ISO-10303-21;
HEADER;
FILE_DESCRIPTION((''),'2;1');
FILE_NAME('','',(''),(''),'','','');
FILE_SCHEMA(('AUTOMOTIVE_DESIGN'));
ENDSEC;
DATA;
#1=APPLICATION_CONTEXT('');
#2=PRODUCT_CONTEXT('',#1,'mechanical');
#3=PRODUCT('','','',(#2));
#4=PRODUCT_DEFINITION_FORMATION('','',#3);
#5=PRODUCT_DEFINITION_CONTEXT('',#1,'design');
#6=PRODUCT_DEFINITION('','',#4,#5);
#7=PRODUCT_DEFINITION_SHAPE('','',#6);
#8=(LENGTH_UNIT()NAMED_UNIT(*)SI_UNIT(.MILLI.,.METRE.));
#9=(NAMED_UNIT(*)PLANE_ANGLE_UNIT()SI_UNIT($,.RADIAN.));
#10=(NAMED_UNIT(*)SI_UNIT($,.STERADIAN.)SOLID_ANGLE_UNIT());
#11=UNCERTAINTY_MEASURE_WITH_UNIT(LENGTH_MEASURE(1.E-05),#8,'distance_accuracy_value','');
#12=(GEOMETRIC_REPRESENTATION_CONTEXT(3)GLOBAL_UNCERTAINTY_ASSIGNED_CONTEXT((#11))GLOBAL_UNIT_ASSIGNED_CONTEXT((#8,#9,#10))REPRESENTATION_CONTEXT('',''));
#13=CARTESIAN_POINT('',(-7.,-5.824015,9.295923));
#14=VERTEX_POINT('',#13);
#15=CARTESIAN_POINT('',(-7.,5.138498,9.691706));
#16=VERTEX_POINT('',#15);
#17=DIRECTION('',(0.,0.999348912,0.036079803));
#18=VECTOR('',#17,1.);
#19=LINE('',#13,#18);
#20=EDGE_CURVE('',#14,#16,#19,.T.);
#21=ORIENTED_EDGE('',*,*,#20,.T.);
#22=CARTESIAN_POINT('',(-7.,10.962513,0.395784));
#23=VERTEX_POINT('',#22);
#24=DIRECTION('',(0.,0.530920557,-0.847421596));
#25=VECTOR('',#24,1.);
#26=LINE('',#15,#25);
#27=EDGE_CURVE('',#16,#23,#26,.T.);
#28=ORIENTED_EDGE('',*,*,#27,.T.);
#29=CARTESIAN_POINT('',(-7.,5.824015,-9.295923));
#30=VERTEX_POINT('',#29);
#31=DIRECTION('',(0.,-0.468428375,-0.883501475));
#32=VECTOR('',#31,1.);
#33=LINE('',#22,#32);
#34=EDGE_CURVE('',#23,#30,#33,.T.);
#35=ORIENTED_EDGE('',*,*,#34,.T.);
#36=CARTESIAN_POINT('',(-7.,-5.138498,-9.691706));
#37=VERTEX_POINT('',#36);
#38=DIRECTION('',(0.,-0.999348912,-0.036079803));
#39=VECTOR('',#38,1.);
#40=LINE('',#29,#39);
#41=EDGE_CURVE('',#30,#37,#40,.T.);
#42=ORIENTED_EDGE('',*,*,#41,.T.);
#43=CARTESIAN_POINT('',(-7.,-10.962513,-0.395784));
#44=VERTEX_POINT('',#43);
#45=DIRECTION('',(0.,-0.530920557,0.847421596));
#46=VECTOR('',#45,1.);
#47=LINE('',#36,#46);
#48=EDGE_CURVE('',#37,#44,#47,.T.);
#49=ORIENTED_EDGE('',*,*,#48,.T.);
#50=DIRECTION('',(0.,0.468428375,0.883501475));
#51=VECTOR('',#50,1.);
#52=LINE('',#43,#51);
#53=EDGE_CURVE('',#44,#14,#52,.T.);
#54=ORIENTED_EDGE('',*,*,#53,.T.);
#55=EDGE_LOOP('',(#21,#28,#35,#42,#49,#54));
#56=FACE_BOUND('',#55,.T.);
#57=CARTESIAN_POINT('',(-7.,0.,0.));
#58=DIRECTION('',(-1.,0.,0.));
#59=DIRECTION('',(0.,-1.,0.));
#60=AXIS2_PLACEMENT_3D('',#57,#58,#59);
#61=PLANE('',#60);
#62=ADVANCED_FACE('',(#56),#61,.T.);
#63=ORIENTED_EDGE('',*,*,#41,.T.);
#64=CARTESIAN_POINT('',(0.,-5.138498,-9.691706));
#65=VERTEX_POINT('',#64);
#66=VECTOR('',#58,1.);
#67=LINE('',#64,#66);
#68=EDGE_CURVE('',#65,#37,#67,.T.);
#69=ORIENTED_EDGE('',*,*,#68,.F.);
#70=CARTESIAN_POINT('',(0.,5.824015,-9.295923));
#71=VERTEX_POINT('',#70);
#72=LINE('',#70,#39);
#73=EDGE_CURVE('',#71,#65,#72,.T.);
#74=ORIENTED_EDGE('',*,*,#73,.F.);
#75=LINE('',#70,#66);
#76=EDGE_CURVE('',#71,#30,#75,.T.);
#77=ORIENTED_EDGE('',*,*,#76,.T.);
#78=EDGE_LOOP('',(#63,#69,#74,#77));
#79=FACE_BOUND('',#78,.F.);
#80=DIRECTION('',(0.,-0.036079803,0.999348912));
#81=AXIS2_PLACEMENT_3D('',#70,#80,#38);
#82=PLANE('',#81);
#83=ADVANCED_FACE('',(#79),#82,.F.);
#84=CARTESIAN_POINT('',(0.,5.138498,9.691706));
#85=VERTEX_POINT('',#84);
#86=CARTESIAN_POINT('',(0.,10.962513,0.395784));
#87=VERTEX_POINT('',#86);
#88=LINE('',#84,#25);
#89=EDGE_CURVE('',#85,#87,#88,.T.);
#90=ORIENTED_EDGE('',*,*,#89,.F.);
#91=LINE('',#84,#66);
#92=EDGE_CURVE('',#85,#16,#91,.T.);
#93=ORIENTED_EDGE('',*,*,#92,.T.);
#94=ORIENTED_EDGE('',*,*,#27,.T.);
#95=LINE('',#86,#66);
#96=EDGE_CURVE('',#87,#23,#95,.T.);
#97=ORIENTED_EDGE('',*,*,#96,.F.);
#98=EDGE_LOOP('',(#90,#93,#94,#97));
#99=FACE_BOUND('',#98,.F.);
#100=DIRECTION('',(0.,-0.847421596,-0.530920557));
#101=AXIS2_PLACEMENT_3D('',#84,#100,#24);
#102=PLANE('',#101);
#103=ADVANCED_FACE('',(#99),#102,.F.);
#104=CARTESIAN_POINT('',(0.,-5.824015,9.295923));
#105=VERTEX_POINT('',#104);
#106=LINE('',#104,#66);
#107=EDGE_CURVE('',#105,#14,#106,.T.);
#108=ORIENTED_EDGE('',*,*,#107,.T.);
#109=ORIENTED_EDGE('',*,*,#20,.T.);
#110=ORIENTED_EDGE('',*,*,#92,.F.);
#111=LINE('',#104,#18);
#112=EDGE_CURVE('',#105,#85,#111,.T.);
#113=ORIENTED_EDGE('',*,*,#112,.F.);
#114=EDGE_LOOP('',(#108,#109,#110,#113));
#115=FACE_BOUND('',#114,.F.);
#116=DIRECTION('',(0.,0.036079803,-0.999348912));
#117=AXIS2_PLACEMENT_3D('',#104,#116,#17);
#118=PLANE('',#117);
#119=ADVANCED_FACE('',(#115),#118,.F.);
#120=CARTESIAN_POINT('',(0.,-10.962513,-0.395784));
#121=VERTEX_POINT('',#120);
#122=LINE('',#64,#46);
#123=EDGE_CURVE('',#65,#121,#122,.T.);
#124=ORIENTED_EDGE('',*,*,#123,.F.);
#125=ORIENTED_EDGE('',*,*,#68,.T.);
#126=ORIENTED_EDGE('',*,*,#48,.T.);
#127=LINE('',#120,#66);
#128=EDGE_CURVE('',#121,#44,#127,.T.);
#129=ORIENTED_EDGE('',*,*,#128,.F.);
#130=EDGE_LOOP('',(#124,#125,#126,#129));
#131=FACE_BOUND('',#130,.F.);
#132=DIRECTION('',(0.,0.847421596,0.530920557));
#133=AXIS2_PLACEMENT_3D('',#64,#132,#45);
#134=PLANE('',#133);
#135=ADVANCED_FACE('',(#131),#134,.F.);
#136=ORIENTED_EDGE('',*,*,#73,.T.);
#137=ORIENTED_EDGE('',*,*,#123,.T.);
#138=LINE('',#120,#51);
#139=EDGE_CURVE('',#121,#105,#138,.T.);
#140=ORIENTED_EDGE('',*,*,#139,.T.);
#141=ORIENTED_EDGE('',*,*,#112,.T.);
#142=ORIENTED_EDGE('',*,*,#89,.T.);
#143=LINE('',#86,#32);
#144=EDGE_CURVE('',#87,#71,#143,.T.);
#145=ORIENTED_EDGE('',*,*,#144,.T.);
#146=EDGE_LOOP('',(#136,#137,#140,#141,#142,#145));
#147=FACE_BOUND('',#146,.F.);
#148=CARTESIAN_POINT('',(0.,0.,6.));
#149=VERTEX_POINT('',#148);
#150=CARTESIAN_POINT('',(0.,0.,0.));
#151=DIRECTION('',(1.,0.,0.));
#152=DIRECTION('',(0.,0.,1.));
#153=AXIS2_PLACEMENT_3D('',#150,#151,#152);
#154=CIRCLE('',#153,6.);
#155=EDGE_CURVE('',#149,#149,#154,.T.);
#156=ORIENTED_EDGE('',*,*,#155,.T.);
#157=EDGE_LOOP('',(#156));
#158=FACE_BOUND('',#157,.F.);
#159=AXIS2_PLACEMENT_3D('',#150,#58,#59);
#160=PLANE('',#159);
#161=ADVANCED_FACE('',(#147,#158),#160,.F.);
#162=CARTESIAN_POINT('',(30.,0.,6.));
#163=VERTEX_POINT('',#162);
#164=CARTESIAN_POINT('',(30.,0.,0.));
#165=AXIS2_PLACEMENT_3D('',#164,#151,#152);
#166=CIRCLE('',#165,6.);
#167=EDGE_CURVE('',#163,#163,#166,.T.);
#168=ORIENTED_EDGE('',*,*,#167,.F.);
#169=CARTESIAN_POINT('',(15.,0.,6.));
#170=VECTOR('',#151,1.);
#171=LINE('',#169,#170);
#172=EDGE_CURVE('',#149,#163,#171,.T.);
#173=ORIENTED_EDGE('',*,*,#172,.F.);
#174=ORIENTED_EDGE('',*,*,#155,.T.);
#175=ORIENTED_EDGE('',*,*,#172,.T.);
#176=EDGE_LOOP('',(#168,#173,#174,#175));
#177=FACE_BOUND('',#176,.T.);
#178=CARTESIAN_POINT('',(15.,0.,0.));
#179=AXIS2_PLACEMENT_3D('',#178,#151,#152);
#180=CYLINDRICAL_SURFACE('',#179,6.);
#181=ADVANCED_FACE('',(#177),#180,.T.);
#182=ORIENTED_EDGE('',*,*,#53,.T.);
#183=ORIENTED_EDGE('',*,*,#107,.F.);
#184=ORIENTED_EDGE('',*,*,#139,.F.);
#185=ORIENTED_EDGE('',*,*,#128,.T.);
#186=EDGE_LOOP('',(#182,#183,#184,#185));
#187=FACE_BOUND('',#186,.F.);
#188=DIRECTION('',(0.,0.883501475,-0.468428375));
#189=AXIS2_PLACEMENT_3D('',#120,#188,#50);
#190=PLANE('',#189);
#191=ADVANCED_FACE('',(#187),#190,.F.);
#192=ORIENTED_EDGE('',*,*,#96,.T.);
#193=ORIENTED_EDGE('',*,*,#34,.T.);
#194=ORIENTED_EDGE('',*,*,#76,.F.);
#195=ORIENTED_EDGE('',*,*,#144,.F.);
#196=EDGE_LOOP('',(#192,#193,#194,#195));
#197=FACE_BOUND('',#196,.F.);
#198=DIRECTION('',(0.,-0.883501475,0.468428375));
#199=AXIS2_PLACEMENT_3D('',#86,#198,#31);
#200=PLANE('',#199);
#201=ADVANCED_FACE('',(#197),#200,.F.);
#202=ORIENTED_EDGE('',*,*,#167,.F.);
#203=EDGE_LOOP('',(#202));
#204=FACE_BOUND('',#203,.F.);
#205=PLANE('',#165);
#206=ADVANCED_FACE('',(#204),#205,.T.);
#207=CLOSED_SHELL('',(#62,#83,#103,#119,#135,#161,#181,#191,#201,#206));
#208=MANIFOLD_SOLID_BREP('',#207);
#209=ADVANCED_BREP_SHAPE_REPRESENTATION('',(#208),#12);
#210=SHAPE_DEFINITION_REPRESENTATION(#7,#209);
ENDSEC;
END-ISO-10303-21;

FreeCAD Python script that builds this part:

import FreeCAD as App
import Part
import Sketcher

V = App.Vector


def add_polygon(sketch, points):
    """Adds a closed chain of lines whose ends are joined by coincident constraints."""
    first, n = sketch.GeometryCount, len(points)
    for a, b in zip(points, points[1:] + points[:1]):
        sketch.addGeometry(Part.LineSegment(App.Vector(*a, 0), App.Vector(*b, 0)), False)
    for i in range(n):
        sketch.addConstraint(Sketcher.Constraint("Coincident", first + i, 2, first + (i + 1) % n, 1))

doc = App.newDocument("Part")
body = doc.addObject("PartDesign::Body", "Body")

sketch1 = body.newObject("Sketcher::SketchObject", "Sketch")
sketch1.AttachmentSupport = (doc.getObject("XZ_Plane"), [""])
sketch1.MapMode = "FlatFace"
add_polygon(sketch1, [(0, 6), (0, 0), (30, 0), (30, 6)])
sketch1.addConstraint([
    Sketcher.Constraint("Vertical", 0),
    Sketcher.Constraint("Horizontal", 1),
    Sketcher.Constraint("Vertical", 2),
    Sketcher.Constraint("Horizontal", 3),
    Sketcher.Constraint("Coincident", 0, 2, -1, 1),
    Sketcher.Constraint("DistanceX", 1, 1, 1, 2, 30.0),
    Sketcher.Constraint("DistanceY", 0, 2, 0, 1, 6.0),
])
revolution = body.newObject("PartDesign::Revolution", "Revolution")
revolution.Profile = sketch1
revolution.ReferenceAxis = (sketch1, ["H_Axis"])
revolution.Angle = 360

sketch2 = body.newObject("Sketcher::SketchObject", "Sketch001")
sketch2.AttachmentSupport = (doc.getObject("YZ_Plane"), [""])
sketch2.MapMode = "FlatFace"
add_polygon(sketch2, [(-10.962513, -0.395784), (-5.824015, 9.295923), (5.138498, 9.691706), (10.962513, 0.395784), (5.824015, -9.295923), (-5.138498, -9.691706)])
sketch2.addConstraint([
    Sketcher.Constraint("Symmetric", 0, 2, 3, 2, -1, 1),
    Sketcher.Constraint("Symmetric", 1, 2, 4, 2, -1, 1),
    Sketcher.Constraint("Symmetric", 2, 2, 5, 2, -1, 1),
    Sketcher.Constraint("Equal", 0, 1),
    Sketcher.Constraint("Equal", 1, 2),
    Sketcher.Constraint("DistanceX", -1, 1, 1, 2, 5.138498),
    Sketcher.Constraint("DistanceY", 2, 2, 1, 2, 9.295922),
    Sketcher.Constraint("DistanceX", 0, 2, 2, 2, 16.786528),
    Sketcher.Constraint("DistanceY", 2, 2, 0, 2, 8.900139),
])
pad1 = body.newObject("PartDesign::Pad", "Pad")
pad1.Profile = sketch2
pad1.Length = 7
pad1.Reversed = True

doc.recompute()
